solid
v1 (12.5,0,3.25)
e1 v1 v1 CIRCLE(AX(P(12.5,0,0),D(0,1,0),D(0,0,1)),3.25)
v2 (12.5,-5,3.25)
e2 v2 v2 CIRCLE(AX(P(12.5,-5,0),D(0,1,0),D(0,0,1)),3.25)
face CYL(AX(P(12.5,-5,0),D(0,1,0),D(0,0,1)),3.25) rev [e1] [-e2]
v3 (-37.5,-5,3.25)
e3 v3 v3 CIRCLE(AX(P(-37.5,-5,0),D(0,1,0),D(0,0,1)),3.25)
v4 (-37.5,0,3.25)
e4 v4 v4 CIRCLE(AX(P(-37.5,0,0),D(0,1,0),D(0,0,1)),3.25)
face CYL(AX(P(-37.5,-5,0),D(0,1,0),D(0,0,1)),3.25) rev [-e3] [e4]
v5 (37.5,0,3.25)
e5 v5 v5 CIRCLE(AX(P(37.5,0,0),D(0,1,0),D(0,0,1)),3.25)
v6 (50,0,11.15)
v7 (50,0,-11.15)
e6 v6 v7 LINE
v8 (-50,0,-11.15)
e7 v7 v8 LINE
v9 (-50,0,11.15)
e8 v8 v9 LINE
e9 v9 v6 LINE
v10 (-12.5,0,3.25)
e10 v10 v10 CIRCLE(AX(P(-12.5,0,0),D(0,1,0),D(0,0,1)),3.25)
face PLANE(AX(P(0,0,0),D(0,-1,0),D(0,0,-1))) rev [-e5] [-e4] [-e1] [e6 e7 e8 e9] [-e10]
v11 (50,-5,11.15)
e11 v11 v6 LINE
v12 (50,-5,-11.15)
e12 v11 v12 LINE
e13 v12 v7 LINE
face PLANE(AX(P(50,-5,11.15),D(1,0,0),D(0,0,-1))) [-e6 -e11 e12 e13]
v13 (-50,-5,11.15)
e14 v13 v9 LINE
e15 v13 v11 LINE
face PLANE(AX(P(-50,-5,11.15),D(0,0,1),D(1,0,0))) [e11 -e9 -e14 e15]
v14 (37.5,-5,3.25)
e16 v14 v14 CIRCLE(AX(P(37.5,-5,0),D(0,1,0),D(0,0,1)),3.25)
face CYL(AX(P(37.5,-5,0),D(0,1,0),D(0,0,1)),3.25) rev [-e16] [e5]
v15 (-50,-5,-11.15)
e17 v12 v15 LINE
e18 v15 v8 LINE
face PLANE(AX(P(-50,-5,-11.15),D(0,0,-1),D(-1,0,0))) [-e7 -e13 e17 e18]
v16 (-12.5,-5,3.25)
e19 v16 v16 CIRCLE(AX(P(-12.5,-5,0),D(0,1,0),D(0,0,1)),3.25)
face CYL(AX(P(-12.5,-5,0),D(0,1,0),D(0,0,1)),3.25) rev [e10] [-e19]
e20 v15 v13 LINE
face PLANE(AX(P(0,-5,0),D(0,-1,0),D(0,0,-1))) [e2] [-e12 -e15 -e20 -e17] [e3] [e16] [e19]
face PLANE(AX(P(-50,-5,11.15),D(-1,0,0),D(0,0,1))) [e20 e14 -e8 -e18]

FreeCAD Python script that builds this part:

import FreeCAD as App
import Part
import Sketcher
Q = App.Units.Quantity


def add_polygon(sketch, points):
    """Adds a closed chain of lines whose ends are joined by coincident constraints."""
    first, n = sketch.GeometryCount, len(points)
    for a, b in zip(points, points[1:] + points[:1]):
        sketch.addGeometry(Part.LineSegment(App.Vector(*a, 0), App.Vector(*b, 0)), False)
    for i in range(n):
        sketch.addConstraint(Sketcher.Constraint("Coincident", first + i, 2, first + (i + 1) % n, 1))

doc = App.newDocument("Part")
body = doc.addObject("PartDesign::Body", "Body")

sketch1 = body.newObject("Sketcher::SketchObject", "Sketch")
sketch1.AttachmentSupport = (doc.getObject("XZ_Plane"), [""])
sketch1.MapMode = "FlatFace"
add_polygon(sketch1, [(-50, -11.15), (-50, 11.15), (50, 11.15), (50, -11.15)])
sketch1.addGeometry(Part.Circle(App.Vector(-37.5, 0, 0), App.Vector(0, 0, 1), 3.25), False)
sketch1.addGeometry(Part.Circle(App.Vector(-12.5, 0, 0), App.Vector(0, 0, 1), 3.25), False)
sketch1.addGeometry(Part.Circle(App.Vector(12.5, 0, 0), App.Vector(0, 0, 1), 3.25), False)
sketch1.addGeometry(Part.Circle(App.Vector(37.5, 0, 0), App.Vector(0, 0, 1), 3.25), False)
sketch1.addConstraint([
    Sketcher.Constraint("Vertical", 0),
    Sketcher.Constraint("Horizontal", 1),
    Sketcher.Constraint("Vertical", 2),
    Sketcher.Constraint("Horizontal", 3),
    Sketcher.Constraint("Equal", 4, 5),
    Sketcher.Constraint("Equal", 5, 6),
    Sketcher.Constraint("Equal", 6, 7),
    Sketcher.Constraint("Symmetric", 5, 3, 6, 3, -1, 1),
    Sketcher.Constraint("Symmetric", 4, 3, 7, 3, -1, 1),
    Sketcher.Constraint("Symmetric", 0, 2, 2, 2, -1, 1),
    Sketcher.Constraint("PointOnObject", 4, 3, -1),
    Sketcher.Constraint("PointOnObject", 5, 3, -1),
    Sketcher.Constraint("Diameter", 4, Q("6.5 mm")),
    Sketcher.Constraint("DistanceX", 1, 1, 1, 2, Q("100 mm")),
    Sketcher.Constraint("DistanceY", 0, 1, 0, 2, Q("22.3 mm")),
    Sketcher.Constraint("DistanceX", 4, 3, 5, 3, Q("25 mm")),
    Sketcher.Constraint("DistanceX", 5, 3, 6, 3, Q("25 mm")),
])
pad1 = body.newObject("PartDesign::Pad", "Pad")
pad1.Profile = sketch1
pad1.Length = 5

doc.recompute()
